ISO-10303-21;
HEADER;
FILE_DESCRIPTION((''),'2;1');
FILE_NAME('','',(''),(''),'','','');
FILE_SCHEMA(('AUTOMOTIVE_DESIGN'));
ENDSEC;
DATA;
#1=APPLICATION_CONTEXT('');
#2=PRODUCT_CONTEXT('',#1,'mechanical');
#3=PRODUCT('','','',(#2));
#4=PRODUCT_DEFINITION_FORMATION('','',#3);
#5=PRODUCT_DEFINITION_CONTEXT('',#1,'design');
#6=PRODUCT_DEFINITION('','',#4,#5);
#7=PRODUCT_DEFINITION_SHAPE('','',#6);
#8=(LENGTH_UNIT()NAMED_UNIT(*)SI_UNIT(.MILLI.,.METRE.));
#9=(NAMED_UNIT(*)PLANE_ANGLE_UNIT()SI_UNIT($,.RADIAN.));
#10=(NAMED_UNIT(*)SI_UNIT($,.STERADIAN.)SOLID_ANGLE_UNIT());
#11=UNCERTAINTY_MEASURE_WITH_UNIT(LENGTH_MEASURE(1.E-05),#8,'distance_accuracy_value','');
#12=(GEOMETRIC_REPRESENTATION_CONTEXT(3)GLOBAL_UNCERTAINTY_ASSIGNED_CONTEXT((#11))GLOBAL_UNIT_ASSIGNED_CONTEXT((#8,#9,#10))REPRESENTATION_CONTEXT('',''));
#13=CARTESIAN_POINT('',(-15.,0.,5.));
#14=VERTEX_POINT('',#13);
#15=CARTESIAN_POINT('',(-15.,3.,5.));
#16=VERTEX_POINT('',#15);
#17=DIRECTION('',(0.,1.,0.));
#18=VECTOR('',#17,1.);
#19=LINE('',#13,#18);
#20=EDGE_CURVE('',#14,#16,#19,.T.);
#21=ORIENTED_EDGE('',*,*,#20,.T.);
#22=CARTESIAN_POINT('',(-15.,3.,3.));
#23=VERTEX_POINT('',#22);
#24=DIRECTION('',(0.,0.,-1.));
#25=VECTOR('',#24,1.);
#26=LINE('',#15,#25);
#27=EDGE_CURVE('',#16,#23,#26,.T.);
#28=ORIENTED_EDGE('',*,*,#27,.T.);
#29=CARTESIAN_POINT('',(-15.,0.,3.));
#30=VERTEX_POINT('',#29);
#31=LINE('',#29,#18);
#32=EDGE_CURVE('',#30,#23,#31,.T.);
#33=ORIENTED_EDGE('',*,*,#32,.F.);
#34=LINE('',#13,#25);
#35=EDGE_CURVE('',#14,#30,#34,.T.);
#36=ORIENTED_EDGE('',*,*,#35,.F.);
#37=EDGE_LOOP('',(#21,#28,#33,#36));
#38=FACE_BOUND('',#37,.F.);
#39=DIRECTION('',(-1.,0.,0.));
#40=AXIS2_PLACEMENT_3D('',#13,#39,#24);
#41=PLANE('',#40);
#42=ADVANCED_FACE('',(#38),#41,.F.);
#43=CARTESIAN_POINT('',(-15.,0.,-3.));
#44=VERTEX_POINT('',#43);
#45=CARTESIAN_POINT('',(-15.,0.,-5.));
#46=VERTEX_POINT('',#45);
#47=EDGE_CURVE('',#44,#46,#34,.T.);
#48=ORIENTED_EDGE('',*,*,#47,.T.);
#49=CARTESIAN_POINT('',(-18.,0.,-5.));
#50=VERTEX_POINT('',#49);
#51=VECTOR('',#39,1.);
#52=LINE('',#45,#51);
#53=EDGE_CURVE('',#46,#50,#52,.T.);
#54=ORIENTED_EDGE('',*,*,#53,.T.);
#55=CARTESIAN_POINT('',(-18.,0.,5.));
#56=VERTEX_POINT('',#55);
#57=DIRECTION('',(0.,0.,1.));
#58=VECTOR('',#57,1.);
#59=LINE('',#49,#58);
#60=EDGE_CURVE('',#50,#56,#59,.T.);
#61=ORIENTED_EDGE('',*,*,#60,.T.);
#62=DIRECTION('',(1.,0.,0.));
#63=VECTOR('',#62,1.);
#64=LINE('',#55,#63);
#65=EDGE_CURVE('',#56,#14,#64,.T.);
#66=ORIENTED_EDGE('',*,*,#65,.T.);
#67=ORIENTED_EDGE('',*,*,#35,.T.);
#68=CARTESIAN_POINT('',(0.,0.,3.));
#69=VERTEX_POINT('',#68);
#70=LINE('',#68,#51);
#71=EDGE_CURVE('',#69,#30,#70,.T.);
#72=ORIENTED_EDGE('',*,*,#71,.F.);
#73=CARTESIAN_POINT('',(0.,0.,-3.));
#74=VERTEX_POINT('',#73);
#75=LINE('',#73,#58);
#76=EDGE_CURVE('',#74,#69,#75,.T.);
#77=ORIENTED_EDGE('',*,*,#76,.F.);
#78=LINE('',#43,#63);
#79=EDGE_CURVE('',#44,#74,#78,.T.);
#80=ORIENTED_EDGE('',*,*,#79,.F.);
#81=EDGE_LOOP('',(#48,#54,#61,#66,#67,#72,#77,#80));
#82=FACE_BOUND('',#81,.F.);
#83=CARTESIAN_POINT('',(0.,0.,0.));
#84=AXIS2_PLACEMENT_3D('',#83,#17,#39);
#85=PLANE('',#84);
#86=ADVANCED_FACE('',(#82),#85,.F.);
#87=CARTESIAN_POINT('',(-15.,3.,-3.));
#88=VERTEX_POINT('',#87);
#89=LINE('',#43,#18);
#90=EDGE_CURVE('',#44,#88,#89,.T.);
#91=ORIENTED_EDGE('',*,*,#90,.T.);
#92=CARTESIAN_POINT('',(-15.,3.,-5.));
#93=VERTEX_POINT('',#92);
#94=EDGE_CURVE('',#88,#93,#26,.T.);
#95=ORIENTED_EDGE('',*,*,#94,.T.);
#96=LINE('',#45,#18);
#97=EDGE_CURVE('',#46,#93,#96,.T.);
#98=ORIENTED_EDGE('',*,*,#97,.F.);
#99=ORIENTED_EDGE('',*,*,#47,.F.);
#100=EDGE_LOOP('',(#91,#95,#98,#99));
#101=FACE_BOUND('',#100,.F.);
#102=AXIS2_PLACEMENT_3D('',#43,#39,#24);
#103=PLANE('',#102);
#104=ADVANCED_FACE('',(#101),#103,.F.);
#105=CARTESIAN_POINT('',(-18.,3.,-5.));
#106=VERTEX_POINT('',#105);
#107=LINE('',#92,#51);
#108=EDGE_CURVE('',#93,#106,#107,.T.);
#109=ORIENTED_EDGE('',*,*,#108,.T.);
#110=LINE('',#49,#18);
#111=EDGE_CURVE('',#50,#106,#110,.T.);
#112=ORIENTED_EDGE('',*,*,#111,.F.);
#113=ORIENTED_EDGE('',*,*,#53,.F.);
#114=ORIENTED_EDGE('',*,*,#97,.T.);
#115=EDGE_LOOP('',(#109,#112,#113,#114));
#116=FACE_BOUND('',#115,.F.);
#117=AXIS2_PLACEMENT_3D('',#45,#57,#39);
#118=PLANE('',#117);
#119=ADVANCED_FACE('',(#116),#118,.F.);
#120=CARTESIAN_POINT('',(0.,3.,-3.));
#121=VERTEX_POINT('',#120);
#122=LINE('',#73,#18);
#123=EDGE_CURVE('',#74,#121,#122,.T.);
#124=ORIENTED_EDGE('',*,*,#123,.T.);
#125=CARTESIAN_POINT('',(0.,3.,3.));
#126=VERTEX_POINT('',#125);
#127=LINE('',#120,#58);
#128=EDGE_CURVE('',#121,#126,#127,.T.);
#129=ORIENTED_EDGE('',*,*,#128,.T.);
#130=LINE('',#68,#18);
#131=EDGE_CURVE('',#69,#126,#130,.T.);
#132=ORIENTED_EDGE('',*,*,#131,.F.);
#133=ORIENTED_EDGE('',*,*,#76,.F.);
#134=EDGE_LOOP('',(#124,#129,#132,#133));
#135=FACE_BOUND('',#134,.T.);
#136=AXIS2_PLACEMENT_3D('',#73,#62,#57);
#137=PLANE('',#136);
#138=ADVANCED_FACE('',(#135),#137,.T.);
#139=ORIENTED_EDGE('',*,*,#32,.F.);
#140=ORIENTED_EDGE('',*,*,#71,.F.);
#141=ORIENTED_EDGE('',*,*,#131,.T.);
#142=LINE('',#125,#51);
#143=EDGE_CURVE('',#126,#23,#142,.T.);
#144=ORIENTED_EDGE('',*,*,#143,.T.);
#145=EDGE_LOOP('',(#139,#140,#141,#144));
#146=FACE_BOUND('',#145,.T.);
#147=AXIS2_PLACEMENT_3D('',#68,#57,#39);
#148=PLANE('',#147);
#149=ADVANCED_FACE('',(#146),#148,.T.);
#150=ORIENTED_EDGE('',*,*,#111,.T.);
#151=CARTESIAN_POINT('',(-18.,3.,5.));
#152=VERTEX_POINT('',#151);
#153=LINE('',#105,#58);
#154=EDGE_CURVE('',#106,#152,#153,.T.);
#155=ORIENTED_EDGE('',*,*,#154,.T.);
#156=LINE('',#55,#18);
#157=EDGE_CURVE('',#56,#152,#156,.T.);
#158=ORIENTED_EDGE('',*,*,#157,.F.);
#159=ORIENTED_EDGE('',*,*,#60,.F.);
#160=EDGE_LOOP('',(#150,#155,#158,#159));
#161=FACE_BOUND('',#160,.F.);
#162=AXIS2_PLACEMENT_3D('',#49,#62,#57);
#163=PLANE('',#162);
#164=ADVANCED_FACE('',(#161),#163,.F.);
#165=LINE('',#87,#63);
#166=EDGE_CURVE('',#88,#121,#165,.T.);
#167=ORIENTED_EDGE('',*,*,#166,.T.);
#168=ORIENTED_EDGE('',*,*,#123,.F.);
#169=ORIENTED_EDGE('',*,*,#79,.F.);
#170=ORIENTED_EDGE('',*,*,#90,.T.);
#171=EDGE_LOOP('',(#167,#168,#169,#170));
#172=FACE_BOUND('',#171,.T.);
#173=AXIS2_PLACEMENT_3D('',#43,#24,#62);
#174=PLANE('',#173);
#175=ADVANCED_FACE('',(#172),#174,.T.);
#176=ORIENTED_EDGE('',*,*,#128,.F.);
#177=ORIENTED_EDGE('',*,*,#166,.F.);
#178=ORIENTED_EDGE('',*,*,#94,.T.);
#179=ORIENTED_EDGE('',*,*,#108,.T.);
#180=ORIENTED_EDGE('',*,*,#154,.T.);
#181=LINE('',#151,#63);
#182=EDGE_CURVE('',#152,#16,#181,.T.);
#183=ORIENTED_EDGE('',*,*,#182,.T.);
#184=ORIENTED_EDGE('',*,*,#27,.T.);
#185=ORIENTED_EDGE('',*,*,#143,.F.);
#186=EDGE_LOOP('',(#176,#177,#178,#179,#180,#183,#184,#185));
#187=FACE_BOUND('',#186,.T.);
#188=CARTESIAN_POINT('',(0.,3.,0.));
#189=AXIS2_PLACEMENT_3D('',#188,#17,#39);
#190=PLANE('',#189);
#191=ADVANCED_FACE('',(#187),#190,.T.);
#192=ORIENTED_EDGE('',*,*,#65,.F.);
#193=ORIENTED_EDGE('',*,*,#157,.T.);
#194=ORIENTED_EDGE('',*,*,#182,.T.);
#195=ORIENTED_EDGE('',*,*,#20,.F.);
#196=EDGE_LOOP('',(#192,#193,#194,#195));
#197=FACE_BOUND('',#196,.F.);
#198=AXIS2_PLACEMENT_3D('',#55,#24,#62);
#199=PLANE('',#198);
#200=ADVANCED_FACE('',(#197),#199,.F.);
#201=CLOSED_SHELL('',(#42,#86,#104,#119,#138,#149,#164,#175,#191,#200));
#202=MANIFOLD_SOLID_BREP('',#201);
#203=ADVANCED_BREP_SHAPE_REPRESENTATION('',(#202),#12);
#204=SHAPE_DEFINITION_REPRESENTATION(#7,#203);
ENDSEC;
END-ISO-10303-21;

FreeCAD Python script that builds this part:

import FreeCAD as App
import Part
import Sketcher
Q = App.Units.Quantity

doc = App.newDocument("Part")
body = doc.addObject("PartDesign::Body", "Body")

sketch1 = doc.addObject("Sketcher::SketchObject", "Sketch")
body.addObject(sketch1)
sketch1.AttachmentSupport = (doc.XZ_Plane, [""])
sketch1.MapMode = "FlatFace"
sketch1.addGeometry([
    Part.LineSegment(App.Vector(-15, 3, 0), App.Vector(0, 3, 0)),
    Part.LineSegment(App.Vector(0, 3, 0), App.Vector(0, -3, 0)),
    Part.LineSegment(App.Vector(0, -3, 0), App.Vector(-15, -3, 0)),
    Part.LineSegment(App.Vector(-15, -3, 0), App.Vector(-15, -5, 0)),
    Part.LineSegment(App.Vector(-15, -5, 0), App.Vector(-18, -5, 0)),
    Part.LineSegment(App.Vector(-18, -5, 0), App.Vector(-18, 5, 0)),
    Part.LineSegment(App.Vector(-18, 5, 0), App.Vector(-15, 5, 0)),
    Part.LineSegment(App.Vector(-15, 5, 0), App.Vector(-15, 3, 0)),
], False)
sketch1.addConstraint([
    Sketcher.Constraint("Coincident", 0, 2, 1, 1),
    Sketcher.Constraint("Coincident", 1, 2, 2, 1),
    Sketcher.Constraint("Coincident", 2, 2, 3, 1),
    Sketcher.Constraint("Coincident", 3, 2, 4, 1),
    Sketcher.Constraint("Coincident", 4, 2, 5, 1),
    Sketcher.Constraint("Coincident", 5, 2, 6, 1),
    Sketcher.Constraint("Coincident", 6, 2, 7, 1),
    Sketcher.Constraint("Coincident", 7, 2, 0, 1),
    Sketcher.Constraint("Horizontal", 0),
    Sketcher.Constraint("Vertical", 1),
    Sketcher.Constraint("Horizontal", 2),
    Sketcher.Constraint("Vertical", 3),
    Sketcher.Constraint("Horizontal", 4),
    Sketcher.Constraint("Vertical", 5),
    Sketcher.Constraint("Horizontal", 6),
    Sketcher.Constraint("Vertical", 7),
    Sketcher.Constraint("Symmetric", 0, 2, 1, 2, -1, 1),
    Sketcher.Constraint("Symmetric", 3, 2, 6, 2, -1),
    Sketcher.Constraint("DistanceX", 0, 1, 0, 2, Q("15 mm")),
    Sketcher.Constraint("DistanceX", 4, 2, 4, 1, Q("3 mm")),
    Sketcher.Constraint("DistanceY", 1, 2, 1, 1, Q("6 mm")),
    Sketcher.Constraint("DistanceY", 5, 1, 5, 2, Q("10 mm")),
])
pad1 = doc.addObject("PartDesign::Pad", "Pad")
body.addObject(pad1)
pad1.Profile = sketch1
pad1.Length = 3
pad1.Reversed = True

doc.recompute()
